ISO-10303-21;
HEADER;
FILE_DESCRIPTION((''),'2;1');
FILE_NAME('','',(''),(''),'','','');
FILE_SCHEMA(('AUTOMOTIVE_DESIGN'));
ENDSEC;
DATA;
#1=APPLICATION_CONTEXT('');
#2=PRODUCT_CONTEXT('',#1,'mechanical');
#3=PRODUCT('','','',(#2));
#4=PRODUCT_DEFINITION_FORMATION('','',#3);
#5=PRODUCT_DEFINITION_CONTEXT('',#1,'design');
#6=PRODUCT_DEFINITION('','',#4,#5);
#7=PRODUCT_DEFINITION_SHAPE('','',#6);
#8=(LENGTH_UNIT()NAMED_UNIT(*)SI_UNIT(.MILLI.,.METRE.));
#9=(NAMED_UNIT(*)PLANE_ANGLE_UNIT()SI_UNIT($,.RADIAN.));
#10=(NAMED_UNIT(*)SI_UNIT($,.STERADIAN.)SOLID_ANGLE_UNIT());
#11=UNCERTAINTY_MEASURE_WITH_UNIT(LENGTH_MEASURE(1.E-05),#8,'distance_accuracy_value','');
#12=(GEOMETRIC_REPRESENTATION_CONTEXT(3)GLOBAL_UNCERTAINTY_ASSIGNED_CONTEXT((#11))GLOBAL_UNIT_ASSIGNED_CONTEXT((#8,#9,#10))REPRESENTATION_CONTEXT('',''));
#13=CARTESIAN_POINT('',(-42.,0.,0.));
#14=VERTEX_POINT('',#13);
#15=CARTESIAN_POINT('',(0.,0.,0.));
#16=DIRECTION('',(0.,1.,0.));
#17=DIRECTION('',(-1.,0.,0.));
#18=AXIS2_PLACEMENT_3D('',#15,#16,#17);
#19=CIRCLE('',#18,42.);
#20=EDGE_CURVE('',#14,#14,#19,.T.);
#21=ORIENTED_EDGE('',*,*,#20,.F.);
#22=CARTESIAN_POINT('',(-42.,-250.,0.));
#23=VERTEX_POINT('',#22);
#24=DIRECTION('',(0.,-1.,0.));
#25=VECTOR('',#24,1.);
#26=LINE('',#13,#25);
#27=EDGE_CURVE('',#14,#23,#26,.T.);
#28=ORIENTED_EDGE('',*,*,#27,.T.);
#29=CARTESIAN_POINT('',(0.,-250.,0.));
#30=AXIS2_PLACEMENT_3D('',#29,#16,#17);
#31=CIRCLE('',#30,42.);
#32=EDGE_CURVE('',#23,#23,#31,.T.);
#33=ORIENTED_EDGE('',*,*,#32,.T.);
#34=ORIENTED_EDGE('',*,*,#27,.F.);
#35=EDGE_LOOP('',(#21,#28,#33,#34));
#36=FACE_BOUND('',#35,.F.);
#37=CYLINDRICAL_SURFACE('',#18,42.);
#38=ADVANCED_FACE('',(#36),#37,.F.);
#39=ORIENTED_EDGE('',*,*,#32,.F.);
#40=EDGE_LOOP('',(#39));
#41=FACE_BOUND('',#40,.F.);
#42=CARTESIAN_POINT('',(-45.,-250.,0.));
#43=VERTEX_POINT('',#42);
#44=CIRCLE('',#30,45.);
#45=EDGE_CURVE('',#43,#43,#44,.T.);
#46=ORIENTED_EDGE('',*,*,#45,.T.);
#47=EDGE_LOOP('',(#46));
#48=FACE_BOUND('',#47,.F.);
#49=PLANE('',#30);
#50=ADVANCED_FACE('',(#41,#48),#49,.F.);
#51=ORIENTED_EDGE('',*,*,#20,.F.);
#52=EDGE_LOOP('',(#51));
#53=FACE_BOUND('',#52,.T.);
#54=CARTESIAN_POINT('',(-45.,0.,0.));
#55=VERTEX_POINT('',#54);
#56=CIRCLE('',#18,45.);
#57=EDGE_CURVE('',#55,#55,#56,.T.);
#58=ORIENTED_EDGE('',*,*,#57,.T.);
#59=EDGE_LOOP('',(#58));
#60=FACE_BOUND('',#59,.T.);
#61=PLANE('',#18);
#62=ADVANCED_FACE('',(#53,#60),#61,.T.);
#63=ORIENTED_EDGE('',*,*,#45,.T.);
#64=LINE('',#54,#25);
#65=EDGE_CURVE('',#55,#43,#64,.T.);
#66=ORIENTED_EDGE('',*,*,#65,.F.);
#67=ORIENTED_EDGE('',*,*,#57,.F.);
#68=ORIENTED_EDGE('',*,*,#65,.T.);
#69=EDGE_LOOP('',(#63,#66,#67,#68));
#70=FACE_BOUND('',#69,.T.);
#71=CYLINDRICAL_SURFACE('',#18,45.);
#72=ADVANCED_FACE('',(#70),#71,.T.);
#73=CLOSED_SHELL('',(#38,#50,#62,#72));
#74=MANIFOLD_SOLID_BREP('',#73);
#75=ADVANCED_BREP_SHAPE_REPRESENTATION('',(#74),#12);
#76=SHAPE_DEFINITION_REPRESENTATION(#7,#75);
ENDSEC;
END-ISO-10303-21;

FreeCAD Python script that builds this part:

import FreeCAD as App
import Part
import Sketcher

V = App.Vector

doc = App.newDocument("Part")
body = doc.addObject("PartDesign::Body", "Body")

# Sketch on XZ plane
sketch1 = body.newObject("Sketcher::SketchObject", "Sketch")
sketch1.AttachmentSupport = (doc.getObject("XZ_Plane"), [""])
sketch1.MapMode = "FlatFace"
sketch1.addGeometry([
    Part.Circle(V(0, 0, 0), V(0, 0, 1), 45),
    Part.Circle(V(0, 0, 0), V(0, 0, 1), 42),
], False)
sketch1.addConstraint([
    Sketcher.Constraint("Coincident", 0, 3, -1, 1),
    Sketcher.Constraint("Coincident", 1, 3, -1, 1),
    Sketcher.Constraint("Diameter", 0, 90.0),
    Sketcher.Constraint("Diameter", 1, 84.0),
])
pad1 = body.newObject("PartDesign::Pad", "Pad")
pad1.Profile = sketch1
pad1.Length = 250

doc.recompute()
